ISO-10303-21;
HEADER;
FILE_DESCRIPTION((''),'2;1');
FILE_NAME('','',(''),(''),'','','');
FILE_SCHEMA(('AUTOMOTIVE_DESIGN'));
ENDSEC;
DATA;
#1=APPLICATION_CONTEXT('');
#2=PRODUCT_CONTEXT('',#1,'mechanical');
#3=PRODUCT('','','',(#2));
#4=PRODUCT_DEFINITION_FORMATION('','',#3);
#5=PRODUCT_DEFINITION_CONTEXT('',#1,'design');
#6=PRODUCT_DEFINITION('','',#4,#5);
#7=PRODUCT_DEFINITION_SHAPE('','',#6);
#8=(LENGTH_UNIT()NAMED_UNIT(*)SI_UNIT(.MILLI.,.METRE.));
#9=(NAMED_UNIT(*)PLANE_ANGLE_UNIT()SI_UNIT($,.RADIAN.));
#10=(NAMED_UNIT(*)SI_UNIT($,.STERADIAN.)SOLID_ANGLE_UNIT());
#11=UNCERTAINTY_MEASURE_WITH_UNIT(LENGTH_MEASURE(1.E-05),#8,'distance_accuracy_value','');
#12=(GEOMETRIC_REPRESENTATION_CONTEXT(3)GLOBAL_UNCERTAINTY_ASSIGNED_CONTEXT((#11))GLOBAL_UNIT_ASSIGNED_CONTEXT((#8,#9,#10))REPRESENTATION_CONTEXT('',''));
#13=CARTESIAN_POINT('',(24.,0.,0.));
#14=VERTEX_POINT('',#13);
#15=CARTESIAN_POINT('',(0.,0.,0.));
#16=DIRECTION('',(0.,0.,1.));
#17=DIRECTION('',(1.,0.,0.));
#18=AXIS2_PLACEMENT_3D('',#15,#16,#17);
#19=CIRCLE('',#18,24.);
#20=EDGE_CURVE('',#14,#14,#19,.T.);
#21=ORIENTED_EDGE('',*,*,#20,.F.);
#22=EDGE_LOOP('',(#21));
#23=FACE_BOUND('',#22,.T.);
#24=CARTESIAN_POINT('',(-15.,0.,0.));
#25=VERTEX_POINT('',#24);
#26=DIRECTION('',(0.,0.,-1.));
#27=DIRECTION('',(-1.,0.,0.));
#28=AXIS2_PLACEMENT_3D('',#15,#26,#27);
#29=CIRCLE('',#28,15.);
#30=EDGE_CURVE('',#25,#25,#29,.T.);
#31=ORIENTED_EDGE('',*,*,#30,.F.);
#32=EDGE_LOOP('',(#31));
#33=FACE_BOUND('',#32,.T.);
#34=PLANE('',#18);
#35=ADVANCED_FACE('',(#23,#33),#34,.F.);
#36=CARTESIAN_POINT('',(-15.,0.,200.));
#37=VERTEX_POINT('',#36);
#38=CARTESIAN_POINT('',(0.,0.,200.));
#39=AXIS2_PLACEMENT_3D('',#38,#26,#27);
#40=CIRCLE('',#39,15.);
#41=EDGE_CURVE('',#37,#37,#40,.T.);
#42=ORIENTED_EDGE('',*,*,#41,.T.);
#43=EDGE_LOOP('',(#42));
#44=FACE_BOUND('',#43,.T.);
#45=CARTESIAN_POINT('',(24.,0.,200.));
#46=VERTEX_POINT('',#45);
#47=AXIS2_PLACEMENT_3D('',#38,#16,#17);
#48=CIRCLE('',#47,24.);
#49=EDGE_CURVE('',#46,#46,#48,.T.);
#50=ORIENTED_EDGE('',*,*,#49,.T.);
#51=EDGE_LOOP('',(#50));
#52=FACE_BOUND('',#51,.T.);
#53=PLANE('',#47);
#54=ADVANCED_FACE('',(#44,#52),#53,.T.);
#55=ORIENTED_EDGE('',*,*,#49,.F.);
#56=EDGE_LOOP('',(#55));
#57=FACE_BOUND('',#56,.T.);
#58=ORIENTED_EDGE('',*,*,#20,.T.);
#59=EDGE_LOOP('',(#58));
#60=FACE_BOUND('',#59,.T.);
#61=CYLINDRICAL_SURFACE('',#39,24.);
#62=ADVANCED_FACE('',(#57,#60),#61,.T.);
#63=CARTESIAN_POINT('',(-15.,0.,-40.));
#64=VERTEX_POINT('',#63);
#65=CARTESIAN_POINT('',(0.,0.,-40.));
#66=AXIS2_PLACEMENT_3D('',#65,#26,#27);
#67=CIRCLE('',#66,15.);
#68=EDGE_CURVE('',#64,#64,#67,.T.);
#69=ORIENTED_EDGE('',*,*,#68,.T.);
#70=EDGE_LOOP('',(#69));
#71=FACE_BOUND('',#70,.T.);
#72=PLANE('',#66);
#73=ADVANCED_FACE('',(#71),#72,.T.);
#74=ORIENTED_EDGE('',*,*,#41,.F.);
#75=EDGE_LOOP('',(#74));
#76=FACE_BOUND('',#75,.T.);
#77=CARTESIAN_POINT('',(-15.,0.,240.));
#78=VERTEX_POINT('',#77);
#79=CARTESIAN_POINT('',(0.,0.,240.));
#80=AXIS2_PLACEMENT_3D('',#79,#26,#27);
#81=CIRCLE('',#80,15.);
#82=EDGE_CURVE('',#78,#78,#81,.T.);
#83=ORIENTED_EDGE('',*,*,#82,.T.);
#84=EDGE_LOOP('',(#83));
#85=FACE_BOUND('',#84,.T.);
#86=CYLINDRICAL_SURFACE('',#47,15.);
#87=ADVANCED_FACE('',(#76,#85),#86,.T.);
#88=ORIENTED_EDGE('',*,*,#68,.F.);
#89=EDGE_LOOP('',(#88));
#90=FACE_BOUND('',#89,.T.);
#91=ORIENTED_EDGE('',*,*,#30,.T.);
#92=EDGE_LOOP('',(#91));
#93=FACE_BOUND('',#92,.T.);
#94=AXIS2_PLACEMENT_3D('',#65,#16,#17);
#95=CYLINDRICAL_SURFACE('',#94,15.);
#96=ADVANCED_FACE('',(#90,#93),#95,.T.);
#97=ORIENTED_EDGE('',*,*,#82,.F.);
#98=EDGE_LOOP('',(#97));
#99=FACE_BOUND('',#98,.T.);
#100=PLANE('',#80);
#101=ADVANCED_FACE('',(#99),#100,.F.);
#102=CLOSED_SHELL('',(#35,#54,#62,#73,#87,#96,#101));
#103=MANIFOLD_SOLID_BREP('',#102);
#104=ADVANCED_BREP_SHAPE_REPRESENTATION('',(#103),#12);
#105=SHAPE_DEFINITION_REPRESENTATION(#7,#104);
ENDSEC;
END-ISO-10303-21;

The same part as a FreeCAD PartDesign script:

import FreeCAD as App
import Part
import Sketcher
from FreeCAD import Vector

doc = App.newDocument("Part")
params = doc.addObject("Spreadsheet::Sheet", "Params")
for row, (alias, value) in enumerate([
    ("sketch1_diameter", "48 mm"),
    ("pad1_length", "200 mm"),
    ("sketch2_diameter", "30 mm"),
    ("pad2_length", "40 mm"),
    ("linearpattern_pitch", "240 mm"),
], start=1):
    params.set(f"A{row}", alias)
    params.set(f"B{row}", "=" + value)
    params.setAlias(f"B{row}", alias)

body = doc.addObject("PartDesign::Body", "Body")

# Sketch on XY plane
sketch1 = body.newObject("Sketcher::SketchObject", "Sketch")
sketch1.AttachmentSupport = (doc.getObject("XY_Plane"), [""])
sketch1.MapMode = "FlatFace"
sketch1.addGeometry(Part.Circle(Vector(0, 0, 0), Vector(0, 0, 1), 24), False)
sketch1.addConstraint([
    Sketcher.Constraint("Coincident", 0, 3, -1, 1),
    Sketcher.Constraint("Diameter", 0, 48.0),
])
sketch1.setExpression("Constraints[1]", "Params.sketch1_diameter")
pad1 = body.newObject("PartDesign::Pad", "Pad")
pad1.Profile = sketch1
pad1.setExpression("Length", "Params.pad1_length")

# Sketch on XY plane
sketch2 = body.newObject("Sketcher::SketchObject", "Sketch001")
sketch2.AttachmentSupport = (doc.getObject("XY_Plane"), [""])
sketch2.MapMode = "FlatFace"
sketch2.addGeometry(Part.Circle(Vector(0, 0, 0), Vector(0, 0, 1), 15), False)
sketch2.addConstraint([
    Sketcher.Constraint("Coincident", 0, 3, -1, 1),
    Sketcher.Constraint("Diameter", 0, 30.0),
])
sketch2.setExpression("Constraints[1]", "Params.sketch2_diameter")
pad2 = body.newObject("PartDesign::Pad", "Pad001")
pad2.Profile = sketch2
pad2.setExpression("Length", "Params.pad2_length")
pad2.Reversed = True
doc.recompute()

linearpattern = body.newObject("PartDesign::LinearPattern", "LinearPattern")
linearpattern.Originals = [pad2]
linearpattern.Direction = (doc.getObject("Z_Axis"), [""])
linearpattern.Mode = "offset"
linearpattern.setExpression("Offset", "Params.linearpattern_pitch")
linearpattern.Occurrences = 2
body.Tip = linearpattern

doc.recompute()
